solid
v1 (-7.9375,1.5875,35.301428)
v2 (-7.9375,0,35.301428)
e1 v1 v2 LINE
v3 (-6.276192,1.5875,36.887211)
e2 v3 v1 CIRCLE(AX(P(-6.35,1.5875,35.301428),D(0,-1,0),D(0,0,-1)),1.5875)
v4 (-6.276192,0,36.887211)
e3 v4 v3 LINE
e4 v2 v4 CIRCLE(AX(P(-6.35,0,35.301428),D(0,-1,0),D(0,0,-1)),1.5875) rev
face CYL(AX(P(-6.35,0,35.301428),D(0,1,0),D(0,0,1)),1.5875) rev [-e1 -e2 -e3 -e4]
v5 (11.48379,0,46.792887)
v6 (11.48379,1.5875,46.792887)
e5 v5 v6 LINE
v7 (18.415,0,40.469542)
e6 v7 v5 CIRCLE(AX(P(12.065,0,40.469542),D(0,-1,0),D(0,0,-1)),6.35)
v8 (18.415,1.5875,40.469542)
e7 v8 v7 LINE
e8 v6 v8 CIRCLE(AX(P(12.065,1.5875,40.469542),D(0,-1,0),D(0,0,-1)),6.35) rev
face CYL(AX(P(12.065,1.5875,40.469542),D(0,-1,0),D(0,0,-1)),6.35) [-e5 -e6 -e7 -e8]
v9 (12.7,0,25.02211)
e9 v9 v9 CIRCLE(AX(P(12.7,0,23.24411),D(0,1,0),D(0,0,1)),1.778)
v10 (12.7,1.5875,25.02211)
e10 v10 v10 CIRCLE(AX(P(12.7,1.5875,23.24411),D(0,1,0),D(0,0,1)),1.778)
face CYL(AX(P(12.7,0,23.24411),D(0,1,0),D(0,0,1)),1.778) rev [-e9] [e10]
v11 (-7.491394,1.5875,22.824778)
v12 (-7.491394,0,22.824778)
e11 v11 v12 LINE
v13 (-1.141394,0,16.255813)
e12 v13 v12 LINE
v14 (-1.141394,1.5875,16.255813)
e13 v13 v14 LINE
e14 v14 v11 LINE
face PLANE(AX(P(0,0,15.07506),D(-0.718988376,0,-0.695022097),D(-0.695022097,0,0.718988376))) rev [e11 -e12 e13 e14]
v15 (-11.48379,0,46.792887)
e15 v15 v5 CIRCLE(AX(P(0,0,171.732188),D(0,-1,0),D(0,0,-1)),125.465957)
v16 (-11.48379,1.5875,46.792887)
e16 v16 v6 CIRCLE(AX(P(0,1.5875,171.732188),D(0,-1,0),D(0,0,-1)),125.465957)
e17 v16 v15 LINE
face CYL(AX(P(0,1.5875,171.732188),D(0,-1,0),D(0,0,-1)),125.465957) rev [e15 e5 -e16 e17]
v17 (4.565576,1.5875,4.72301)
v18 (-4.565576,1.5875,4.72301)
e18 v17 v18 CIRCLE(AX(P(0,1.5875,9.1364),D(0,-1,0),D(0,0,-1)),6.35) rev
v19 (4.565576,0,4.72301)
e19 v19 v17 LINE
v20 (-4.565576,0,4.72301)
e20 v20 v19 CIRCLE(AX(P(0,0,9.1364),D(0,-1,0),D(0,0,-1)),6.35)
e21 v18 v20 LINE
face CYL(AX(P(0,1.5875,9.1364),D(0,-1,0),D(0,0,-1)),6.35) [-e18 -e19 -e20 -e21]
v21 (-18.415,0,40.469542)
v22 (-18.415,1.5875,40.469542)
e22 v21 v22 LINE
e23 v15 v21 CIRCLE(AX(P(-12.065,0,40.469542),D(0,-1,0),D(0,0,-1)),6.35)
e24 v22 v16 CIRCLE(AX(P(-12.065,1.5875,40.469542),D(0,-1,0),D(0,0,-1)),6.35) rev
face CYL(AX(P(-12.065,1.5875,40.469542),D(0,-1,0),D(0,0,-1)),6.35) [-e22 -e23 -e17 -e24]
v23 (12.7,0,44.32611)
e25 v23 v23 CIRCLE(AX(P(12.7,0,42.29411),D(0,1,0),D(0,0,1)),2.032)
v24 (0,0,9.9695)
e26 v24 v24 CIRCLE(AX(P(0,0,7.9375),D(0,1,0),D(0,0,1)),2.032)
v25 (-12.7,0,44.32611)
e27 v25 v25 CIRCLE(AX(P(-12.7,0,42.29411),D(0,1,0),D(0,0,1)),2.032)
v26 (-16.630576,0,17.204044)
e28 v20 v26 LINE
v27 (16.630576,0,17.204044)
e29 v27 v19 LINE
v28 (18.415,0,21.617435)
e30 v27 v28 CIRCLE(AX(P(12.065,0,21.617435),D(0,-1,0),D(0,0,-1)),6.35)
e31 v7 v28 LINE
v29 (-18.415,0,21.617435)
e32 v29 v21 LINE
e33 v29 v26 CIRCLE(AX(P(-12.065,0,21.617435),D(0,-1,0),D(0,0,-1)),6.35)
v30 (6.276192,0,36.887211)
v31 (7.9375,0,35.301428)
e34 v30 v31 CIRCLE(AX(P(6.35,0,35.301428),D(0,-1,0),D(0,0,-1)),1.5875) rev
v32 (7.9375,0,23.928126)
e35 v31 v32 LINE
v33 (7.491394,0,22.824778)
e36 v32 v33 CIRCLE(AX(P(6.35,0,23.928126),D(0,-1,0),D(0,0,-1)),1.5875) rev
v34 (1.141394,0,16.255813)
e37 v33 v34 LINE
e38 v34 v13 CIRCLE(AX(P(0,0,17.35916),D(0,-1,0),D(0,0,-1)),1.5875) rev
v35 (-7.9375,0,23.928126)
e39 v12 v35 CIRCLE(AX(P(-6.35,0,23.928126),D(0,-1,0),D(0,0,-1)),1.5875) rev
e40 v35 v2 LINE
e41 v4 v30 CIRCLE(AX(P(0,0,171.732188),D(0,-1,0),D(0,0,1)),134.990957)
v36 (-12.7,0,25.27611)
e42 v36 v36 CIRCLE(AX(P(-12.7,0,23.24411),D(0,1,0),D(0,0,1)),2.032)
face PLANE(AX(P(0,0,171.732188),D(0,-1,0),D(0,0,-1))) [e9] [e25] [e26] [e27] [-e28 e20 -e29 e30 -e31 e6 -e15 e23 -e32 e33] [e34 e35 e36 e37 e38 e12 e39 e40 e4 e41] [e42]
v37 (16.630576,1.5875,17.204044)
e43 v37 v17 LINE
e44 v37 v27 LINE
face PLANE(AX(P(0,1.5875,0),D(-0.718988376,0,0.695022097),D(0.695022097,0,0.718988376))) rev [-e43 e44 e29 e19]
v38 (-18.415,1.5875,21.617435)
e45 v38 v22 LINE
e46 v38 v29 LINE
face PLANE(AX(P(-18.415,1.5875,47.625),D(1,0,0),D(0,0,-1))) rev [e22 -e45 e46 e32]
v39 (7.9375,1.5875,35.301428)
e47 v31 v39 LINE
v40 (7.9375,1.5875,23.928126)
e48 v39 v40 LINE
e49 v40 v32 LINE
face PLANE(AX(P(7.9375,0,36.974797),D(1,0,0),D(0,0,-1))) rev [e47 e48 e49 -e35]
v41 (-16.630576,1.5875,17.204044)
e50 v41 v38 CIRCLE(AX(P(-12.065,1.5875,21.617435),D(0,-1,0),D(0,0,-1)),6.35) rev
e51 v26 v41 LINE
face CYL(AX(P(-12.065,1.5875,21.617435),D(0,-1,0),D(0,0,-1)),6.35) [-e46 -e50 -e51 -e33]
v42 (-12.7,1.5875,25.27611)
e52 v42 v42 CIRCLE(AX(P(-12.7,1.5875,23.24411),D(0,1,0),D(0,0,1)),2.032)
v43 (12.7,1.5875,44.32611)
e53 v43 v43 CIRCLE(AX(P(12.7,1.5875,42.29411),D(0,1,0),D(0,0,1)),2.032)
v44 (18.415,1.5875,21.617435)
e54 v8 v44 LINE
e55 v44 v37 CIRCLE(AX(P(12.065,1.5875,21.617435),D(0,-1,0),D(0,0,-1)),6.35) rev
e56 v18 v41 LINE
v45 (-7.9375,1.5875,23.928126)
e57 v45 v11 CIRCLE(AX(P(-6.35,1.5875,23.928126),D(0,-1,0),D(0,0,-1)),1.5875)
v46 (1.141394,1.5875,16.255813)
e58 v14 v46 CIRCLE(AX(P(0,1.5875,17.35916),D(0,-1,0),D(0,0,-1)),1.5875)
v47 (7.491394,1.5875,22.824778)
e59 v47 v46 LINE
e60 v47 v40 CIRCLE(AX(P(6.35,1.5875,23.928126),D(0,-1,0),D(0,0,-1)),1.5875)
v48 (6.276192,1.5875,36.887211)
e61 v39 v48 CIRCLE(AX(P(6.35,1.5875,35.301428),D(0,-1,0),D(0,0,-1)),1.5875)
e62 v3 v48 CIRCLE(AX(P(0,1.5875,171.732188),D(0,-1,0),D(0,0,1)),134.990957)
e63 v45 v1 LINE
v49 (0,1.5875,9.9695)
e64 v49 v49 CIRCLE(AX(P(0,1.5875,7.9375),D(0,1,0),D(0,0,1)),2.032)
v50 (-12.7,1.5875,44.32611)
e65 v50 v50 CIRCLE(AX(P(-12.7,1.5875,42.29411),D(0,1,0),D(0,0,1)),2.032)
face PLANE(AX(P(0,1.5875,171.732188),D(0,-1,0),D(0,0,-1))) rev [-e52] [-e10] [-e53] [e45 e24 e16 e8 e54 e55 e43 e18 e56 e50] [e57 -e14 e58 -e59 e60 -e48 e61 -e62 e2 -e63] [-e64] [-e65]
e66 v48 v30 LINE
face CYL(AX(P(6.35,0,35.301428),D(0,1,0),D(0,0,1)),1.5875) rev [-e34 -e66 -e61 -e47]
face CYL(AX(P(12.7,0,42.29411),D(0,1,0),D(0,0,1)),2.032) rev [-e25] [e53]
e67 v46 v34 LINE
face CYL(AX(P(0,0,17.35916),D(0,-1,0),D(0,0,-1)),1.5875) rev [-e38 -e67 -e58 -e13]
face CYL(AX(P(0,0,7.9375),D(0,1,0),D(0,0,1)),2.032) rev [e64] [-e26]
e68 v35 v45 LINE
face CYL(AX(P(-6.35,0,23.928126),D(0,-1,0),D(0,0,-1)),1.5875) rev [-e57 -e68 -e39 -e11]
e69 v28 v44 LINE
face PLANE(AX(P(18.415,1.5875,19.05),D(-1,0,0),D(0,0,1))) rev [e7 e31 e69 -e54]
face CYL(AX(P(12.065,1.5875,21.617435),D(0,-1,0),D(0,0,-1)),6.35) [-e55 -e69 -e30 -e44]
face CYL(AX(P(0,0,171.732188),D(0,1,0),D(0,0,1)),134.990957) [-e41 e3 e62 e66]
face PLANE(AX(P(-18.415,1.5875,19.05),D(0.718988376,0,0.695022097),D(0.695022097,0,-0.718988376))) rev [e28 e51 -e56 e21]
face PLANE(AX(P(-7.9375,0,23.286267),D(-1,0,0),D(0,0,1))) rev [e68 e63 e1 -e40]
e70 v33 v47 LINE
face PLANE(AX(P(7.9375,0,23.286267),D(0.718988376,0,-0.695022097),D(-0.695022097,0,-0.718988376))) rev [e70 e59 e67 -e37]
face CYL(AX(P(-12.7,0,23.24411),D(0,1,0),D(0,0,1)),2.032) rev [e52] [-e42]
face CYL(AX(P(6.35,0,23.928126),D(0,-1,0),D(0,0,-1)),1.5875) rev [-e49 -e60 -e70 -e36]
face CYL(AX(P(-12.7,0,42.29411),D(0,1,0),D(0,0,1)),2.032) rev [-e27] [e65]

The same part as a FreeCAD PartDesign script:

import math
import FreeCAD as App
import Part
import Sketcher
from FreeCAD import Vector
Q = App.Units.Quantity


def edges_at(feature, points):
    """Names of the edges that pass closest to the given points."""
    edges = feature.Shape.Edges
    near = lambda p: min(range(len(edges)), key=lambda i: edges[i].distToShape(Part.Vertex(*p))[0])
    return sorted({f"Edge{near(p) + 1}" for p in points})

doc = App.newDocument("Part")
body = doc.addObject("PartDesign::Body", "Body")

# Sketch on XZ plane
sketch1 = body.newObject("Sketcher::SketchObject", "Sketch")
sketch1.AttachmentSupport = (doc.getObject("XZ_Plane"), [""])
sketch1.MapMode = "FlatFace"
sketch1.addGeometry([
    Part.LineSegment(Vector(18, 19, 0), Vector(0, 0, 0)),  # 0
    Part.LineSegment(Vector(0, 0, 0), Vector(-18, 19, 0)),  # 1
    Part.LineSegment(Vector(-18, 19, 0), Vector(-18, 48, 0)),  # 2
    Part.ArcOfCircle(Part.Circle(Vector(0, 172, 0), Vector(0, 0, 1), 125), math.radians(-98.44), math.radians(-81.56)),  # 3
    Part.LineSegment(Vector(18, 48, 0), Vector(18, 19, 0)),  # 4
], False)
sketch1.addConstraint([
    Sketcher.Constraint("Coincident", 0, 2, 1, 1),
    Sketcher.Constraint("Coincident", 1, 2, 2, 1),
    Sketcher.Constraint("Coincident", 2, 2, 3, 1),
    Sketcher.Constraint("Coincident", 3, 2, 4, 1),
    Sketcher.Constraint("Coincident", 4, 2, 0, 1),
    Sketcher.Constraint("Vertical", 2),
    Sketcher.Constraint("Vertical", 4),
    Sketcher.Constraint("Coincident", 0, 2, -1, 1),
    Sketcher.Constraint("Symmetric", 2, 2, 3, 2, -2),
    Sketcher.Constraint("Horizontal", 1, 2, 4, 2),
    Sketcher.Constraint("DistanceY", 2, 1, 2, 2, Q("1.125 in")),
    Sketcher.Constraint("DistanceY", -1, 1, 1, 2, Q("0.75 in")),
    Sketcher.Constraint("DistanceX", 2, 2, 3, 2, Q("1.45 in")),
    Sketcher.Constraint("Radius", 3, 125.465957),
])
pad1 = body.newObject("PartDesign::Pad", "Pad")
pad1.Profile = sketch1
pad1.Length = Q("0.0625 in")
pad1.Reversed = True

# Sketch on XZ plane
sketch2 = body.newObject("Sketcher::SketchObject", "Sketch001")
sketch2.AttachmentSupport = (doc.getObject("XZ_Plane"), [""])
sketch2.MapMode = "FlatFace"
sketch2.AttachmentOffset = App.Placement(Vector(0, 0, -0.0625 * 25.4), App.Rotation())
sketch2.addGeometry([
    Part.Circle(Vector(12.7, 42.3, 0), Vector(0, 0, 1), 2),  # 0
    Part.Circle(Vector(-12.7, 42.3, 0), Vector(0, 0, 1), 2),  # 1
    Part.Circle(Vector(-12.7, 23.2, 0), Vector(0, 0, 1), 2),  # 2
    Part.Circle(Vector(12.7, 23.2, 0), Vector(0, 0, 1), 1.8),  # 3
    Part.Circle(Vector(0, 7.9, 0), Vector(0, 0, 1), 2),  # 4
], False)
sketch2.addConstraint([
    Sketcher.Constraint("Equal", 0, 1),
    Sketcher.Constraint("Equal", 1, 2),
    Sketcher.Constraint("Equal", 2, 4),
    Sketcher.Constraint("Symmetric", 0, 3, 1, 3, -2),
    Sketcher.Constraint("Symmetric", 2, 3, 3, 3, -2),
    Sketcher.Constraint("PointOnObject", 4, 3, -2),
    Sketcher.Constraint("Vertical", 1, 3, 2, 3),
    Sketcher.Constraint("Diameter", 0, Q("0.16 in")),
    Sketcher.Constraint("Diameter", 3, Q("0.14 in")),
    Sketcher.Constraint("DistanceX", 1, 3, 0, 3, Q("1 in")),
    Sketcher.Constraint("DistanceY", 2, 3, 1, 3, Q("0.75 in")),
    Sketcher.Constraint("DistanceY", -1, 1, 4, 3, Q("0.3125 in")),
    Sketcher.Constraint("DistanceY", -1, 1, 0, 3, 42.29411),
])
pocket1 = body.newObject("PartDesign::Pocket", "Pocket")
pocket1.Profile = sketch2
pocket1.Type = "ThroughAll"
pocket1.Reversed = True

# Sketch on XZ plane
sketch3 = body.newObject("Sketcher::SketchObject", "Sketch002")
sketch3.AttachmentSupport = (doc.getObject("XZ_Plane"), [""])
sketch3.MapMode = "FlatFace"
sketch3.AttachmentOffset = App.Placement(Vector(0, 0, -0.0625 * 25.4), App.Rotation())
sketch3.addGeometry([
    Part.LineSegment(Vector(8, 37, 0), Vector(8, 23, 0)),  # 0
    Part.LineSegment(Vector(8, 23, 0), Vector(0, 15, 0)),  # 1
    Part.LineSegment(Vector(0, 15, 0), Vector(-8, 23, 0)),  # 2
    Part.LineSegment(Vector(-8, 23, 0), Vector(-8, 37, 0)),  # 3
    Part.ArcOfCircle(Part.Circle(Vector(0, 172, 0), Vector(0, 0, 1), 135), math.radians(-93.37), math.radians(-86.63)),  # 4
], False)
sketch3.addConstraint([
    Sketcher.Constraint("Coincident", 0, 2, 1, 1),
    Sketcher.Constraint("Coincident", 1, 2, 2, 1),
    Sketcher.Constraint("Coincident", 2, 2, 3, 1),
    Sketcher.Constraint("Coincident", 3, 2, 4, 1),
    Sketcher.Constraint("Coincident", 4, 2, 0, 1),
    Sketcher.Constraint("Vertical", 0),
    Sketcher.Constraint("Vertical", 3),
    Sketcher.Constraint("Symmetric", 0, 2, 2, 2, -2),
    Sketcher.Constraint("PointOnObject", 4, 3, -2),
    Sketcher.Constraint("PointOnObject", 1, 2, -2),
    Sketcher.Constraint("DistanceX", -1, 1, 0, 2, Q("0.3125 in")),
    Sketcher.Constraint("Radius", 4, 134.990957),
    Sketcher.Constraint("Distance", 1, 11.4205),
    Sketcher.Constraint("DistanceY", 0, 2, 0, 1, 13.688529),
    Sketcher.Constraint("DistanceY", -1, 1, 4, 3, 171.732188),
])
pocket2 = body.newObject("PartDesign::Pocket", "Pocket001")
pocket2.Profile = sketch3
pocket2.Type = "ThroughAll"
pocket2.Reversed = True
doc.recompute()

fillet = body.newObject("PartDesign::Fillet", "Fillet")
fillet.Base = (pocket2, edges_at(pocket2, [
    (0, 0.794, 0),
    (18.415, 0.794, 19.05),
    (18.415, 0.794, 47.625),
    (-18.415, 0.794, 47.625),
    (-18.415, 0.794, 19.05),
]))
fillet.Radius = Q("0.25 in")
doc.recompute()

fillet2 = body.newObject("PartDesign::Fillet", "Fillet001")
fillet2.Base = (fillet, edges_at(fillet, [
    (-7.938, 0.794, 23.286),
    (0, 0.794, 15.075),
    (7.938, 0.794, 23.286),
    (7.938, 0.794, 36.975),
    (-7.938, 0.794, 36.975),
]))
fillet2.Radius = Q("0.0625 in")

doc.recompute()
